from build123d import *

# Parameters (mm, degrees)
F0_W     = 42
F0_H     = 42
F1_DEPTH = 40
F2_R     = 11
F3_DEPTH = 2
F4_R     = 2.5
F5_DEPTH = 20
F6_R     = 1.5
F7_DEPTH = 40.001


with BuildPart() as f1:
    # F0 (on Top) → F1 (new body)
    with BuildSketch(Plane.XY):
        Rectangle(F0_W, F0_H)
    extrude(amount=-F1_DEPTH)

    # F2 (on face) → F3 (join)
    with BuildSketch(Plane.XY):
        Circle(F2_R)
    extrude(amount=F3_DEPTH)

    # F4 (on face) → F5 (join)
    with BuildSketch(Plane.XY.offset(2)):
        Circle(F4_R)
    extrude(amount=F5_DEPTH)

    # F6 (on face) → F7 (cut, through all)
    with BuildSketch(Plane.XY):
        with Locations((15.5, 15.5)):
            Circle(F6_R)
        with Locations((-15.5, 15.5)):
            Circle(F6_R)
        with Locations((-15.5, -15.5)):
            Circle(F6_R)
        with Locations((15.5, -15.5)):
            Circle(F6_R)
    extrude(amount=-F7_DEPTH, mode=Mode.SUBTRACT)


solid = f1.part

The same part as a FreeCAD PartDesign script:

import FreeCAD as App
import Part
import Sketcher
from FreeCAD import Vector
Q = App.Units.Quantity


def add_polygon(sketch, points):
    """Adds a closed chain of lines whose ends are joined by coincident constraints."""
    first, n = sketch.GeometryCount, len(points)
    for a, b in zip(points, points[1:] + points[:1]):
        sketch.addGeometry(Part.LineSegment(App.Vector(*a, 0), App.Vector(*b, 0)), False)
    for i in range(n):
        sketch.addConstraint(Sketcher.Constraint("Coincident", first + i, 2, first + (i + 1) % n, 1))

doc = App.newDocument("Part")
body = doc.addObject("PartDesign::Body", "Body")

sketch1 = body.newObject("Sketcher::SketchObject", "Sketch")
sketch1.AttachmentSupport = (doc.getObject("XY_Plane"), [""])
sketch1.MapMode = "FlatFace"
add_polygon(sketch1, [(-21, 21), (-21, -21), (21, -21), (21, 21)])
sketch1.addConstraint(Sketcher.Constraint("Vertical", 0))
sketch1.addConstraint(Sketcher.Constraint("Horizontal", 1))
sketch1.addConstraint(Sketcher.Constraint("Vertical", 2))
sketch1.addConstraint(Sketcher.Constraint("Horizontal", 3))
sketch1.addConstraint(Sketcher.Constraint("Symmetric", 0, 2, 2, 2, -1, 1))
sketch1.addConstraint(Sketcher.Constraint("Equal", 3, 0))
sketch1.addConstraint(Sketcher.Constraint("DistanceX", 1, 1, 1, 2, Q("42 mm")))
pad1 = body.newObject("PartDesign::Pad", "Pad")
pad1.Profile = sketch1
pad1.Length = 40
pad1.Reversed = True

sketch2 = body.newObject("Sketcher::SketchObject", "Sketch001")
sketch2.AttachmentSupport = (doc.getObject("XY_Plane"), [""])
sketch2.MapMode = "FlatFace"
sketch2.addGeometry(Part.Circle(Vector(0, 0, 0), Vector(0, 0, 1), 11), False)
sketch2.addConstraint(Sketcher.Constraint("Coincident", 0, 3, -1, 1))
sketch2.addConstraint(Sketcher.Constraint("Diameter", 0, Q("22 mm")))
pad2 = body.newObject("PartDesign::Pad", "Pad001")
pad2.Profile = sketch2
pad2.Length = 2

sketch3 = body.newObject("Sketcher::SketchObject", "Sketch002")
sketch3.AttachmentSupport = (doc.getObject("XY_Plane"), [""])
sketch3.MapMode = "FlatFace"
sketch3.AttachmentOffset = App.Placement(Vector(0, 0, 2), App.Rotation())
sketch3.addGeometry(Part.Circle(Vector(0, 0, 0), Vector(0, 0, 1), 2.5), False)
sketch3.addConstraint(Sketcher.Constraint("Coincident", 0, 3, -1, 1))
sketch3.addConstraint(Sketcher.Constraint("Diameter", 0, Q("5 mm")))
pad3 = body.newObject("PartDesign::Pad", "Pad002")
pad3.Profile = sketch3
pad3.Length = 20

sketch4 = body.newObject("Sketcher::SketchObject", "Sketch003")
sketch4.AttachmentSupport = (doc.getObject("XY_Plane"), [""])
sketch4.MapMode = "FlatFace"
sketch4.addGeometry(Part.Circle(Vector(15.5, 15.5, 0), Vector(0, 0, 1), 1.5), False)
sketch4.addGeometry(Part.Circle(Vector(-15.5, 15.5, 0), Vector(0, 0, 1), 1.5), False)
sketch4.addGeometry(Part.Circle(Vector(-15.5, -15.5, 0), Vector(0, 0, 1), 1.5), False)
sketch4.addGeometry(Part.Circle(Vector(15.5, -15.5, 0), Vector(0, 0, 1), 1.5), False)
sketch4.addConstraint(Sketcher.Constraint("Equal", 0, 1))
sketch4.addConstraint(Sketcher.Constraint("Equal", 1, 2))
sketch4.addConstraint(Sketcher.Constraint("Equal", 2, 3))
sketch4.addConstraint(Sketcher.Constraint("Symmetric", 0, 3, 2, 3, -1, 1))
sketch4.addConstraint(Sketcher.Constraint("Symmetric", 1, 3, 3, 3, -1, 1))
sketch4.addConstraint(Sketcher.Constraint("Symmetric", 0, 3, 1, 3, -2))
sketch4.addConstraint(Sketcher.Constraint("Diameter", 0, Q("3 mm")))
sketch4.addConstraint(Sketcher.Constraint("DistanceX", 1, 3, 0, 3, Q("31 mm")))
sketch4.addConstraint(Sketcher.Constraint("DistanceY", 2, 3, 1, 3, Q("31 mm")))
pocket1 = body.newObject("PartDesign::Pocket", "Pocket")
pocket1.Profile = sketch4
pocket1.Type = "ThroughAll"

doc.recompute()
